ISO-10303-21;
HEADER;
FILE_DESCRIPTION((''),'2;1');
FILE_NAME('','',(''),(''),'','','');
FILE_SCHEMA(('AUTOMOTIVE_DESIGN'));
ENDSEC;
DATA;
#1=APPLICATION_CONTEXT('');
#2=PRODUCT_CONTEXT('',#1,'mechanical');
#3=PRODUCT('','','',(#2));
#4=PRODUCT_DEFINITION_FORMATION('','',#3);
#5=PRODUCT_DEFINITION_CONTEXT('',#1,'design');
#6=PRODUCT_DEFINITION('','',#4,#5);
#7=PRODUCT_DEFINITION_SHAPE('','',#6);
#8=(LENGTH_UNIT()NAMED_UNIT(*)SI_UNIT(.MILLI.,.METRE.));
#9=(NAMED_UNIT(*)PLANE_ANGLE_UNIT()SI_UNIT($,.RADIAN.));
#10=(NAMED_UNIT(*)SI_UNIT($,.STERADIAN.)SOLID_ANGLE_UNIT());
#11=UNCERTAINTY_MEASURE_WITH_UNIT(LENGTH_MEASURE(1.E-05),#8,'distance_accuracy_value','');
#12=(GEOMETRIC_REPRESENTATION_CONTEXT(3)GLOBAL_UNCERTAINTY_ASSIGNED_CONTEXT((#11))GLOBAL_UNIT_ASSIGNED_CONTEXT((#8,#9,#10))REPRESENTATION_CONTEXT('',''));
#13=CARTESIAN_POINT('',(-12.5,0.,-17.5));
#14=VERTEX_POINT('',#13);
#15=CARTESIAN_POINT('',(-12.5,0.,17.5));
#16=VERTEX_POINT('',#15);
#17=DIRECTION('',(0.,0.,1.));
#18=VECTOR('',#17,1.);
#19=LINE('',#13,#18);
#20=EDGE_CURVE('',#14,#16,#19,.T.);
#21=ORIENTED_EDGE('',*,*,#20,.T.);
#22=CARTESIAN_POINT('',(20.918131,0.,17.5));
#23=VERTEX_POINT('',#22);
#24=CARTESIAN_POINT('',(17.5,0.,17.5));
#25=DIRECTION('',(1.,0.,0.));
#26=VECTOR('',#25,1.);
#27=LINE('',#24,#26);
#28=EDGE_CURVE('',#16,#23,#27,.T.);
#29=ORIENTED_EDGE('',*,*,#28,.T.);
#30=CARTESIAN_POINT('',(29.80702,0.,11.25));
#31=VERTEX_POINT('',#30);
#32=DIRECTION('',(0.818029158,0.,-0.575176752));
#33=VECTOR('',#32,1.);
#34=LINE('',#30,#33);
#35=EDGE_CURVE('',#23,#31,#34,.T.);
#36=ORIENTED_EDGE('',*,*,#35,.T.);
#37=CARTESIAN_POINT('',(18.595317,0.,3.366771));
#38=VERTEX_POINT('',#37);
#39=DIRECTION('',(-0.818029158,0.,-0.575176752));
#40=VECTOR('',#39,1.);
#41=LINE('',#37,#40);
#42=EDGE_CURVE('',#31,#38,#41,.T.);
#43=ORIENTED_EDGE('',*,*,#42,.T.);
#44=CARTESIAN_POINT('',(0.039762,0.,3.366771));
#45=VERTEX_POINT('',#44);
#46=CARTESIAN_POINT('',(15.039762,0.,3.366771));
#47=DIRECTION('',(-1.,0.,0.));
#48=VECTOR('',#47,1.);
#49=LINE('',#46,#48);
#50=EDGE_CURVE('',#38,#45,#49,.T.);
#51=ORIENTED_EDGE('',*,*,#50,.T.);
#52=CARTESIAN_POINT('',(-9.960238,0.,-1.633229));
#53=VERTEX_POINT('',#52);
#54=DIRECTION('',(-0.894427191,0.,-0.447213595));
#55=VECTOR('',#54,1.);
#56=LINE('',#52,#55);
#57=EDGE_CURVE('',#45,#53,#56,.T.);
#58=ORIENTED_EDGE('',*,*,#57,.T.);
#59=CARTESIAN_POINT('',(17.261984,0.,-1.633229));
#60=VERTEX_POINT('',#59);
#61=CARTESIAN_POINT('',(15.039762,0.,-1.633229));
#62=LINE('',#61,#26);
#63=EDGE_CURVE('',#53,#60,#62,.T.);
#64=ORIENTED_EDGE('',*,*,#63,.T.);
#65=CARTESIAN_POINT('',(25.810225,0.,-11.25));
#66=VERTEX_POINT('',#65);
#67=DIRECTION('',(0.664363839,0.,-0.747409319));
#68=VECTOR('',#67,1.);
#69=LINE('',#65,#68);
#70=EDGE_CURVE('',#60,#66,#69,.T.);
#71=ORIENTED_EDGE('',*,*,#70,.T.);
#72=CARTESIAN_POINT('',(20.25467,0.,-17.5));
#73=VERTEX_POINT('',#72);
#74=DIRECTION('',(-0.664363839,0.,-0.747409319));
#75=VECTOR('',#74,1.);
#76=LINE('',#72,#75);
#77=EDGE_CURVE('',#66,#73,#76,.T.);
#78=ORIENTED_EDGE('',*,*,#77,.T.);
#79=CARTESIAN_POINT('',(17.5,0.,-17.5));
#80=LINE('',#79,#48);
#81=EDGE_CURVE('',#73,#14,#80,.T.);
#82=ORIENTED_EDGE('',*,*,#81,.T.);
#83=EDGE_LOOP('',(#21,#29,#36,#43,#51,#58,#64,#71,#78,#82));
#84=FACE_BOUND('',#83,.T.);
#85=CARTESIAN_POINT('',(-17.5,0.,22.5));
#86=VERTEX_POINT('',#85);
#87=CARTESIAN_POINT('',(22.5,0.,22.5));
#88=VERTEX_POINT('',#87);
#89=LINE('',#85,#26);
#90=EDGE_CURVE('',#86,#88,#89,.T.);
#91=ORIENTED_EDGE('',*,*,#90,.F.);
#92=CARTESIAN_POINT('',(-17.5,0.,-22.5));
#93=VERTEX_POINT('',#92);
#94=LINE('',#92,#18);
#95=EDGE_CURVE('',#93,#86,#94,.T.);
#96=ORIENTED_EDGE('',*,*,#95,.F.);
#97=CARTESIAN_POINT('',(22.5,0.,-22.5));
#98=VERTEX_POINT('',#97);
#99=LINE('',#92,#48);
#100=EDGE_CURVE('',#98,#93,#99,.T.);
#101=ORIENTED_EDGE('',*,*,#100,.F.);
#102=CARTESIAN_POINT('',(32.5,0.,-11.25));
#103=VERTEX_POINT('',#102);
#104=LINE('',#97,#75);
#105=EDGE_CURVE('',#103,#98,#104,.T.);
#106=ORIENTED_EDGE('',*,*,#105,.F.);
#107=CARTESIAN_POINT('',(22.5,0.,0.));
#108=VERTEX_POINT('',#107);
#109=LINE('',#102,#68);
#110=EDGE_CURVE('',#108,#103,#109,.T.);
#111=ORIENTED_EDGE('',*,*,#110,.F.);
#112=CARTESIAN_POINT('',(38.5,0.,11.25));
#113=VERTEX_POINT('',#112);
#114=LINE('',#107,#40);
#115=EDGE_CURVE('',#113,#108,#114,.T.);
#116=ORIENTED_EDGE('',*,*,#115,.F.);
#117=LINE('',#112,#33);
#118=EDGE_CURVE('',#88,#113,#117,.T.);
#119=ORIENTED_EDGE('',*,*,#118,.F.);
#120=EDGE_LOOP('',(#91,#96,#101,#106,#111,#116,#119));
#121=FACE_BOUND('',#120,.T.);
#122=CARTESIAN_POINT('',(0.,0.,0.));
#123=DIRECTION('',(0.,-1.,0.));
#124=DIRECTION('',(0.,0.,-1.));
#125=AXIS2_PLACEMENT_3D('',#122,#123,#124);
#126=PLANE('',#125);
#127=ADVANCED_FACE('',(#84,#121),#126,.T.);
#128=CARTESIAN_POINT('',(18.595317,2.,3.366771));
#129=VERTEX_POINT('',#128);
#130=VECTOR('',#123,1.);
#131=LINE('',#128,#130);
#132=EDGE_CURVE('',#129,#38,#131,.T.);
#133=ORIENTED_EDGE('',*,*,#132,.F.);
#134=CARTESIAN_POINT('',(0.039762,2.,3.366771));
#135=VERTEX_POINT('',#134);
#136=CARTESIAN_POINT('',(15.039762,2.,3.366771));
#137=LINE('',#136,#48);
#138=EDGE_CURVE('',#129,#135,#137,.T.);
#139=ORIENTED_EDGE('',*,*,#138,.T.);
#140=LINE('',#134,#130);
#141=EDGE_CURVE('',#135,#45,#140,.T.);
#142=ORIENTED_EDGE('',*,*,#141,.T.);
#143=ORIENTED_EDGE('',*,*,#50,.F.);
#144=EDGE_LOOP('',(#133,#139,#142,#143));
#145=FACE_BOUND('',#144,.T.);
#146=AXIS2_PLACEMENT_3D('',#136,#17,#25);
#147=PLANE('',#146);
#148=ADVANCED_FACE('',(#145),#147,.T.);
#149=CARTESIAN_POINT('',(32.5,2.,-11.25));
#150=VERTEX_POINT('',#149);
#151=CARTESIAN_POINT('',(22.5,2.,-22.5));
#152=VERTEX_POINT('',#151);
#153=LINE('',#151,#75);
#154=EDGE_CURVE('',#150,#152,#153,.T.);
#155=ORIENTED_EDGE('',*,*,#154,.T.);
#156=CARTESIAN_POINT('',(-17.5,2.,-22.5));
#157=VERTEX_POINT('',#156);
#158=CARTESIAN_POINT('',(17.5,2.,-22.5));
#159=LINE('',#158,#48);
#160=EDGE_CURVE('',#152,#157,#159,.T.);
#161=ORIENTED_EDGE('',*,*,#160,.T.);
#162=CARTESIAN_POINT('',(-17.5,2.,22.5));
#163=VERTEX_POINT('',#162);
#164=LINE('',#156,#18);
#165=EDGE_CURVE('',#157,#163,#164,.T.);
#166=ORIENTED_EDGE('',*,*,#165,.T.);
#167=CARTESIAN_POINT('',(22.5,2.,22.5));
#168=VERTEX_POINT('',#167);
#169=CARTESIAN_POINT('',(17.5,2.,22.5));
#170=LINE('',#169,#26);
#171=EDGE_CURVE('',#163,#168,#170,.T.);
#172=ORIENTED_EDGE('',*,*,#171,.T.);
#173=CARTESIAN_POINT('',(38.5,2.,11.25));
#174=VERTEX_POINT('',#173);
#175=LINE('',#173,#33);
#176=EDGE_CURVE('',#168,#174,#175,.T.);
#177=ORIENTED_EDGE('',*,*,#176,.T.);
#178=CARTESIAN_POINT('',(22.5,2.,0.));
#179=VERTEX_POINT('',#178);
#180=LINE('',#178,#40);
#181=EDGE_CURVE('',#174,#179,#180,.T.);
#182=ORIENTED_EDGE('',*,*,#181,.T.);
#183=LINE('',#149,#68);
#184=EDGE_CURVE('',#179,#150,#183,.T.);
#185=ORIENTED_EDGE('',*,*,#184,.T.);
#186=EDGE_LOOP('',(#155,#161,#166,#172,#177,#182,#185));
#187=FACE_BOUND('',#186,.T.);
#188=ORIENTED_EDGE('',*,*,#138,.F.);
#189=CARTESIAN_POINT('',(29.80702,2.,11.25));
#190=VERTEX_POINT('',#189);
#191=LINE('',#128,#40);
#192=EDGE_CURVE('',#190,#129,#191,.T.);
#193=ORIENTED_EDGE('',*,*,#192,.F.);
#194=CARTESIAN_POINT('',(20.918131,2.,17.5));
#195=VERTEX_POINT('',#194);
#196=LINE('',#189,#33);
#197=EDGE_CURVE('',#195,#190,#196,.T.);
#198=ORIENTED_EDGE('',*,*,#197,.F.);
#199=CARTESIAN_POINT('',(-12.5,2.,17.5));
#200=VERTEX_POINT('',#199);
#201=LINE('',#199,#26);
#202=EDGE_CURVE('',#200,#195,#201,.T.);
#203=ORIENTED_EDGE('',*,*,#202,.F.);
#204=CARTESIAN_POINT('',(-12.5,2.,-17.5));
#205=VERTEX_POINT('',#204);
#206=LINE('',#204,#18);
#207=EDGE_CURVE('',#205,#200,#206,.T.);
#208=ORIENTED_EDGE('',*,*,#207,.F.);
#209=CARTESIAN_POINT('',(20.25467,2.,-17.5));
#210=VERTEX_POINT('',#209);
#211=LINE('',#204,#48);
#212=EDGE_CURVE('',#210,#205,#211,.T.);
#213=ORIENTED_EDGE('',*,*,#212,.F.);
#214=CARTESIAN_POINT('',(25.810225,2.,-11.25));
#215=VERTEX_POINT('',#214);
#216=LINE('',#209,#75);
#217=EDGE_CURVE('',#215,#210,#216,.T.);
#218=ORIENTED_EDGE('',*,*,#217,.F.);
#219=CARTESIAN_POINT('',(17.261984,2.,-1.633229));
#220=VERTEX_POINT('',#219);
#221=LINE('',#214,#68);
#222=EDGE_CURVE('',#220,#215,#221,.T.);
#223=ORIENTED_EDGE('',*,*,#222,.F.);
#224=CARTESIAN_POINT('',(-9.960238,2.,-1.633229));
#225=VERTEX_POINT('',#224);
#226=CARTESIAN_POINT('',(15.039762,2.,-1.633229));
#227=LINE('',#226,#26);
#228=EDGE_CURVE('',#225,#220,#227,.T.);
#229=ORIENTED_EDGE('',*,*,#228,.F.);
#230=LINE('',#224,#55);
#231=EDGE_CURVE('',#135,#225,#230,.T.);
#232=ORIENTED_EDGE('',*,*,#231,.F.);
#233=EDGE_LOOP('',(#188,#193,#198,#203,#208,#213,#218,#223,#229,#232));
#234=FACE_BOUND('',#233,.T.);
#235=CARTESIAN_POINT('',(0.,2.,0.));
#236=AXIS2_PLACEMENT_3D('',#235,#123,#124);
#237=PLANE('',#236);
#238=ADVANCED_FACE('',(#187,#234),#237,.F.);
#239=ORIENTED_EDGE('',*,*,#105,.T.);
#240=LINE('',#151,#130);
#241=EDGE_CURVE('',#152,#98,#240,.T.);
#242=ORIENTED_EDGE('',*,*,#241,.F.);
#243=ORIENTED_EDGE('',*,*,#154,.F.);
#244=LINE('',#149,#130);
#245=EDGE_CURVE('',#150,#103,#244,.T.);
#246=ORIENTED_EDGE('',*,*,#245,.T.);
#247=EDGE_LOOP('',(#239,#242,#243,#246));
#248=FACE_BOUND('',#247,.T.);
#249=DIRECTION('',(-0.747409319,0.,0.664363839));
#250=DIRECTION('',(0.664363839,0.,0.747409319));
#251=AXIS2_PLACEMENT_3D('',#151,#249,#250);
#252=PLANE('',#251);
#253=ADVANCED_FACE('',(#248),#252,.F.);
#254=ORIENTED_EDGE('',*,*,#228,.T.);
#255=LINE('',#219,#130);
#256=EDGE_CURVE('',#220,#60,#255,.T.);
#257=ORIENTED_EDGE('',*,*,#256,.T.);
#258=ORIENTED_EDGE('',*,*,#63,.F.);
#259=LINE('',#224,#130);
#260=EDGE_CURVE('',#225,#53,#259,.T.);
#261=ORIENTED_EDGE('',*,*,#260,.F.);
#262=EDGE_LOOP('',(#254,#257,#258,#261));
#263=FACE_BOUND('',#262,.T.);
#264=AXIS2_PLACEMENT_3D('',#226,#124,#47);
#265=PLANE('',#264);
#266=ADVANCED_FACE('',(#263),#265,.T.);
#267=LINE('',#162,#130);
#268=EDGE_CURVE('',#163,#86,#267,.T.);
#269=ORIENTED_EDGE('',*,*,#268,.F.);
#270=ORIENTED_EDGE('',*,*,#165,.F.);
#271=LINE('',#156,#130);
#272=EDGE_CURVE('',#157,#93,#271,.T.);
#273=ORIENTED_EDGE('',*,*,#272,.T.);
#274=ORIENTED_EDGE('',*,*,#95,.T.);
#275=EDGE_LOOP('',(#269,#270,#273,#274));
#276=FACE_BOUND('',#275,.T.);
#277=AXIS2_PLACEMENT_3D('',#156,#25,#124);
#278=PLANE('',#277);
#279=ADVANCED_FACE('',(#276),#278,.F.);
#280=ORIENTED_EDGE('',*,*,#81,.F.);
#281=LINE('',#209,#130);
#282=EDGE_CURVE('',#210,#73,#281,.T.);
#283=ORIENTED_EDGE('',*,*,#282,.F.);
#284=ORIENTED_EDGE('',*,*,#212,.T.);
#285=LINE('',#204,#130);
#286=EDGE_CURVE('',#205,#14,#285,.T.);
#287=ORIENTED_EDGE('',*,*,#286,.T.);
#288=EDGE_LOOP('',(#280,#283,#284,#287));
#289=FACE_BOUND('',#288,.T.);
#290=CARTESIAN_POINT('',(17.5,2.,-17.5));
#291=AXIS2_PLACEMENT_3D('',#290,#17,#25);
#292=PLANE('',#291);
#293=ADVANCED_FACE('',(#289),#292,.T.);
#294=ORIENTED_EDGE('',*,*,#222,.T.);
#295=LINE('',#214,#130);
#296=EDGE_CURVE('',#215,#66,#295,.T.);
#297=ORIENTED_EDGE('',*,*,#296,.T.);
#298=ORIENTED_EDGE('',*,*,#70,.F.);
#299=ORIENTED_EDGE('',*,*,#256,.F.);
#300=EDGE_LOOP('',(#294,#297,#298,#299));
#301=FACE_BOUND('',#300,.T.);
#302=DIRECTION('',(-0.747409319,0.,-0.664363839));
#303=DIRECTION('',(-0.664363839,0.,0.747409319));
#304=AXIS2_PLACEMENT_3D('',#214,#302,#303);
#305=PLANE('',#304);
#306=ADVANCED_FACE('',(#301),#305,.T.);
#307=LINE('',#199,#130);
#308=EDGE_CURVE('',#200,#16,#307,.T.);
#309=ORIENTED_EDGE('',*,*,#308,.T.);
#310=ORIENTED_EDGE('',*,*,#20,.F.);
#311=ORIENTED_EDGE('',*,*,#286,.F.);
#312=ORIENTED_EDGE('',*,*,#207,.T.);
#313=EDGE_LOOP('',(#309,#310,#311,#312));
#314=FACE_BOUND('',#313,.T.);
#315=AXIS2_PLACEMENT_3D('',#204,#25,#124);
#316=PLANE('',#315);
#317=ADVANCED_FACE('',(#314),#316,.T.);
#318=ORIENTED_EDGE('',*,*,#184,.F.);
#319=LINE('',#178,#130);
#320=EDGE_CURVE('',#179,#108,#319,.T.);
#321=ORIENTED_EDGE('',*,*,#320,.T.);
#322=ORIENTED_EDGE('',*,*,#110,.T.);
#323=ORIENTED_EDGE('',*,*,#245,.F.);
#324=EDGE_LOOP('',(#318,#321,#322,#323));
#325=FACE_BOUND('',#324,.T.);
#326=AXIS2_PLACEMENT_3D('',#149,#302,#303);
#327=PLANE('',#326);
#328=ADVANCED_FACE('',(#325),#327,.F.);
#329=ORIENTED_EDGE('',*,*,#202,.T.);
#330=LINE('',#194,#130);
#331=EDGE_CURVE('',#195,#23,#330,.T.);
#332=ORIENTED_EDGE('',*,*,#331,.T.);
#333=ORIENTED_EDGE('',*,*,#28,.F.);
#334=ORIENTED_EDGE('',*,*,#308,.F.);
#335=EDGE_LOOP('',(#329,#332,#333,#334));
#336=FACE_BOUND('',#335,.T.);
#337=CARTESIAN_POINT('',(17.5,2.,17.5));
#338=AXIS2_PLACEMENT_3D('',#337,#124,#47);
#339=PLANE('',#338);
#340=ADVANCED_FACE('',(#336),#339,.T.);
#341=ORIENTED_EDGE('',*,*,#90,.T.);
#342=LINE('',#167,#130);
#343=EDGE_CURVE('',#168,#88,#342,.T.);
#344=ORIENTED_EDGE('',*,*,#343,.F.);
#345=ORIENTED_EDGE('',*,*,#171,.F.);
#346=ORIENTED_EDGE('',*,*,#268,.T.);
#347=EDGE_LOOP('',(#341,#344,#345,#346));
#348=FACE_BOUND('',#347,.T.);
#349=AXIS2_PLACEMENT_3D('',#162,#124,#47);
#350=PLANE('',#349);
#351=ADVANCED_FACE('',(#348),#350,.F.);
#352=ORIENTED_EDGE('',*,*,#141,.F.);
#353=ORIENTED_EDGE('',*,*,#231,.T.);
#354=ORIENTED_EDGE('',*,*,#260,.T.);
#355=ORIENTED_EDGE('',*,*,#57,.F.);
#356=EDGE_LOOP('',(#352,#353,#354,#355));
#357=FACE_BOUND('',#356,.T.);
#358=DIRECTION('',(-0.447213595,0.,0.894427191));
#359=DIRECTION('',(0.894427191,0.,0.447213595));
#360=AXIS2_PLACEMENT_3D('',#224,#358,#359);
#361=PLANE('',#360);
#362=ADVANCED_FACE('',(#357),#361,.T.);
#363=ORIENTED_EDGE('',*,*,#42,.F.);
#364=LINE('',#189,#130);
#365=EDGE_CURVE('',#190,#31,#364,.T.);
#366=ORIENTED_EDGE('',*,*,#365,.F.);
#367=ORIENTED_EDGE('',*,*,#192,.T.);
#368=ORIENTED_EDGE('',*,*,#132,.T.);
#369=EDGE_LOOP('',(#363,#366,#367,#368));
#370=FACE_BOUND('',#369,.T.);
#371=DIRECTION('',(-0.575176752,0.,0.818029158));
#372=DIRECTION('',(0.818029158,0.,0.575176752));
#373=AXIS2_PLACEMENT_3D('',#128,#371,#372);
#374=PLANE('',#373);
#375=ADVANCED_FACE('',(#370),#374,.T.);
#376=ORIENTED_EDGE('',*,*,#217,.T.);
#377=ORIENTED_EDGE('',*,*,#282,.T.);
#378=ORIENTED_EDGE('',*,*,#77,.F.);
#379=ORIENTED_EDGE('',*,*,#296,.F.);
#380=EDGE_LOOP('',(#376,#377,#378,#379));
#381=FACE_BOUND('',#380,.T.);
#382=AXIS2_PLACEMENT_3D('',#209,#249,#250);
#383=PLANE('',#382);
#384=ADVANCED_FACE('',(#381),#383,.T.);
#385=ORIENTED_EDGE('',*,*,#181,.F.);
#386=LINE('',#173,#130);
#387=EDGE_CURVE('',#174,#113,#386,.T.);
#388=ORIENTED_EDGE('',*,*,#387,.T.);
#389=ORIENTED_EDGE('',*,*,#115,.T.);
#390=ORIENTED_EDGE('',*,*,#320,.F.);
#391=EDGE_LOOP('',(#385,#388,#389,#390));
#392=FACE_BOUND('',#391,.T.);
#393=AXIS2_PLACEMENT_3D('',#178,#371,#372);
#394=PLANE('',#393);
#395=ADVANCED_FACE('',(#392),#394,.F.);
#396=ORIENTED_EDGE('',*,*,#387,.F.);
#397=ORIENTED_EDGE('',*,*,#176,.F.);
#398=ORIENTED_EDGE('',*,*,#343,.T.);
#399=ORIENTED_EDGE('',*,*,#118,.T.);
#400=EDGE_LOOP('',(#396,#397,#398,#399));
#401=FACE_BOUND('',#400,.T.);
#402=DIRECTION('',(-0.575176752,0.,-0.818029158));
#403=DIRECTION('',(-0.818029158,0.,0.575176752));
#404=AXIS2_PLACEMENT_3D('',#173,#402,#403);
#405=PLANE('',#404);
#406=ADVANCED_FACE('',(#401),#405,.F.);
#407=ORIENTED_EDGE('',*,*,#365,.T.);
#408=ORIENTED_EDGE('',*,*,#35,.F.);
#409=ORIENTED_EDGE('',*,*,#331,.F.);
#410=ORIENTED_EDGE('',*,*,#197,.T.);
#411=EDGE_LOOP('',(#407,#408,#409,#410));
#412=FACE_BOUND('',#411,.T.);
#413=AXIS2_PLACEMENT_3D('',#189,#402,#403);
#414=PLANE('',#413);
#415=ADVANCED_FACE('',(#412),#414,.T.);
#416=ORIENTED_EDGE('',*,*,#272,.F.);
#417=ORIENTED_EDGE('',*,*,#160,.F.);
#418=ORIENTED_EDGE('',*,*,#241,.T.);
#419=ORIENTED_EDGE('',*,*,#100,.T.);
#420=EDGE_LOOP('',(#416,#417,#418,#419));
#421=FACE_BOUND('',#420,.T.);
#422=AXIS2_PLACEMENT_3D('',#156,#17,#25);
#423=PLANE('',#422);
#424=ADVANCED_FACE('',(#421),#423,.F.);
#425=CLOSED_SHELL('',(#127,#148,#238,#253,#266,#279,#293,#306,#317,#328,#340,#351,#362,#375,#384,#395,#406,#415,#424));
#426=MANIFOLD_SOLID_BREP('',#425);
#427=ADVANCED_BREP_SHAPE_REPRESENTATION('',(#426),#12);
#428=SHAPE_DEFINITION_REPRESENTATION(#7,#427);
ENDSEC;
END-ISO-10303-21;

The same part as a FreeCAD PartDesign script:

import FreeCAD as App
import Part
import Sketcher

V = App.Vector
Q = App.Units.Quantity

doc = App.newDocument("Part")
body = doc.addObject("PartDesign::Body", "Body")

sketch1 = doc.addObject("Sketcher::SketchObject", "Sketch")
body.addObject(sketch1)
sketch1.AttachmentSupport = (doc.XZ_Plane, [""])
sketch1.MapMode = "FlatFace"
sketch1.addGeometry(Part.LineSegment(V(22, -22, 0), V(-18, -22, 0)), False)
sketch1.addGeometry(Part.LineSegment(V(-18, -22, 0), V(-18, 22, 0)), False)
sketch1.addGeometry(Part.LineSegment(V(-18, 22, 0), V(22, 22, 0)), False)
sketch1.addGeometry(Part.LineSegment(V(22, 22, 0), V(38, 11, 0)), False)
sketch1.addGeometry(Part.LineSegment(V(38, 11, 0), V(22, 0, 0)), False)
sketch1.addGeometry(Part.LineSegment(V(22, 0, 0), V(32, -11, 0)), False)
sketch1.addGeometry(Part.LineSegment(V(32, -11, 0), V(22, -22, 0)), False)
sketch1.addGeometry(Part.LineSegment(V(20, -18, 0), V(26, -11, 0)), False)
sketch1.addGeometry(Part.LineSegment(V(26, -11, 0), V(17, -2, 0)), False)
sketch1.addGeometry(Part.LineSegment(V(17, -2, 0), V(-10, -2, 0)), False)
sketch1.addGeometry(Part.LineSegment(V(-10, -2, 0), V(0, 3, 0)), False)
sketch1.addGeometry(Part.LineSegment(V(0, 3, 0), V(19, 3, 0)), False)
sketch1.addGeometry(Part.LineSegment(V(19, 3, 0), V(30, 11, 0)), False)
sketch1.addGeometry(Part.LineSegment(V(30, 11, 0), V(21, 18, 0)), False)
sketch1.addGeometry(Part.LineSegment(V(21, 18, 0), V(-12, 18, 0)), False)
sketch1.addGeometry(Part.LineSegment(V(-12, 18, 0), V(-12, -18, 0)), False)
sketch1.addGeometry(Part.LineSegment(V(-12, -18, 0), V(20, -18, 0)), False)
sketch1.addConstraint(Sketcher.Constraint("Coincident", 0, 2, 1, 1))
sketch1.addConstraint(Sketcher.Constraint("Coincident", 1, 2, 2, 1))
sketch1.addConstraint(Sketcher.Constraint("Coincident", 2, 2, 3, 1))
sketch1.addConstraint(Sketcher.Constraint("Coincident", 3, 2, 4, 1))
sketch1.addConstraint(Sketcher.Constraint("Coincident", 4, 2, 5, 1))
sketch1.addConstraint(Sketcher.Constraint("Coincident", 5, 2, 6, 1))
sketch1.addConstraint(Sketcher.Constraint("Coincident", 6, 2, 0, 1))
sketch1.addConstraint(Sketcher.Constraint("Coincident", 7, 2, 8, 1))
sketch1.addConstraint(Sketcher.Constraint("Coincident", 8, 2, 9, 1))
sketch1.addConstraint(Sketcher.Constraint("Coincident", 9, 2, 10, 1))
sketch1.addConstraint(Sketcher.Constraint("Coincident", 10, 2, 11, 1))
sketch1.addConstraint(Sketcher.Constraint("Coincident", 11, 2, 12, 1))
sketch1.addConstraint(Sketcher.Constraint("Coincident", 12, 2, 13, 1))
sketch1.addConstraint(Sketcher.Constraint("Coincident", 13, 2, 14, 1))
sketch1.addConstraint(Sketcher.Constraint("Coincident", 14, 2, 15, 1))
sketch1.addConstraint(Sketcher.Constraint("Coincident", 15, 2, 16, 1))
sketch1.addConstraint(Sketcher.Constraint("Coincident", 16, 2, 7, 1))
sketch1.addConstraint(Sketcher.Constraint("Horizontal", 0))
sketch1.addConstraint(Sketcher.Constraint("Vertical", 1))
sketch1.addConstraint(Sketcher.Constraint("Horizontal", 2))
sketch1.addConstraint(Sketcher.Constraint("Horizontal", 9))
sketch1.addConstraint(Sketcher.Constraint("Horizontal", 11))
sketch1.addConstraint(Sketcher.Constraint("Horizontal", 14))
sketch1.addConstraint(Sketcher.Constraint("Vertical", 15))
sketch1.addConstraint(Sketcher.Constraint("Horizontal", 16))
sketch1.addConstraint(Sketcher.Constraint("Symmetric", 2, 2, 6, 2, -1))
sketch1.addConstraint(Sketcher.Constraint("PointOnObject", 4, 2, -1))
sketch1.addConstraint(Sketcher.Constraint("Parallel", 6, 7))
sketch1.addConstraint(Sketcher.Constraint("Parallel", 5, 8))
sketch1.addConstraint(Sketcher.Constraint("Parallel", 4, 12))
sketch1.addConstraint(Sketcher.Constraint("Parallel", 3, 13))
sketch1.addConstraint(Sketcher.Constraint("Horizontal", 5, 2, 7, 2))
sketch1.addConstraint(Sketcher.Constraint("Horizontal", 3, 2, 12, 2))
sketch1.addConstraint(Sketcher.Constraint("Vertical", 2, 2, 4, 2))
sketch1.addConstraint(Sketcher.Constraint("Equal", 3, 4))
sketch1.addConstraint(Sketcher.Constraint("Equal", 5, 6))
sketch1.addConstraint(Sketcher.Constraint("DistanceX", 0, 2, 0, 1, Q("40 mm")))
sketch1.addConstraint(Sketcher.Constraint("DistanceY", 1, 1, 1, 2, Q("45 mm")))
sketch1.addConstraint(Sketcher.Constraint("DistanceY", 15, 2, 15, 1, Q("35 mm")))
sketch1.addConstraint(Sketcher.Constraint("DistanceX", 2, 2, 3, 2, Q("16 mm")))
sketch1.addConstraint(Sketcher.Constraint("DistanceX", 4, 2, 5, 2, Q("10 mm")))
sketch1.addConstraint(Sketcher.Constraint("DistanceX", 9, 2, 10, 2, Q("10 mm")))
sketch1.addConstraint(Sketcher.Constraint("DistanceY", 9, 2, 10, 2, Q("5 mm")))
sketch1.addConstraint(Sketcher.Constraint("DistanceY", 13, 2, 2, 2, Q("5 mm")))
sketch1.addConstraint(Sketcher.Constraint("DistanceX", 1, 2, 14, 2, Q("5 mm")))
sketch1.addConstraint(Sketcher.Constraint("DistanceX", 0, 2, -1, 1, Q("17.5 mm")))
sketch1.addConstraint(Sketcher.Constraint("DistanceX", 14, 2, 14, 1, Q("33.418131 mm")))
sketch1.addConstraint(Sketcher.Constraint("DistanceX", 16, 1, 16, 2, Q("32.75467 mm")))
sketch1.addConstraint(Sketcher.Constraint("Distance", 12, Q("13.70575 mm")))
sketch1.addConstraint(Sketcher.Constraint("DistanceX", 9, 2, 9, 1, Q("27.222222 mm")))
pad1 = doc.addObject("PartDesign::Pad", "Pad")
body.addObject(pad1)
pad1.Profile = sketch1
pad1.Length = 2
pad1.Reversed = True

doc.recompute()
